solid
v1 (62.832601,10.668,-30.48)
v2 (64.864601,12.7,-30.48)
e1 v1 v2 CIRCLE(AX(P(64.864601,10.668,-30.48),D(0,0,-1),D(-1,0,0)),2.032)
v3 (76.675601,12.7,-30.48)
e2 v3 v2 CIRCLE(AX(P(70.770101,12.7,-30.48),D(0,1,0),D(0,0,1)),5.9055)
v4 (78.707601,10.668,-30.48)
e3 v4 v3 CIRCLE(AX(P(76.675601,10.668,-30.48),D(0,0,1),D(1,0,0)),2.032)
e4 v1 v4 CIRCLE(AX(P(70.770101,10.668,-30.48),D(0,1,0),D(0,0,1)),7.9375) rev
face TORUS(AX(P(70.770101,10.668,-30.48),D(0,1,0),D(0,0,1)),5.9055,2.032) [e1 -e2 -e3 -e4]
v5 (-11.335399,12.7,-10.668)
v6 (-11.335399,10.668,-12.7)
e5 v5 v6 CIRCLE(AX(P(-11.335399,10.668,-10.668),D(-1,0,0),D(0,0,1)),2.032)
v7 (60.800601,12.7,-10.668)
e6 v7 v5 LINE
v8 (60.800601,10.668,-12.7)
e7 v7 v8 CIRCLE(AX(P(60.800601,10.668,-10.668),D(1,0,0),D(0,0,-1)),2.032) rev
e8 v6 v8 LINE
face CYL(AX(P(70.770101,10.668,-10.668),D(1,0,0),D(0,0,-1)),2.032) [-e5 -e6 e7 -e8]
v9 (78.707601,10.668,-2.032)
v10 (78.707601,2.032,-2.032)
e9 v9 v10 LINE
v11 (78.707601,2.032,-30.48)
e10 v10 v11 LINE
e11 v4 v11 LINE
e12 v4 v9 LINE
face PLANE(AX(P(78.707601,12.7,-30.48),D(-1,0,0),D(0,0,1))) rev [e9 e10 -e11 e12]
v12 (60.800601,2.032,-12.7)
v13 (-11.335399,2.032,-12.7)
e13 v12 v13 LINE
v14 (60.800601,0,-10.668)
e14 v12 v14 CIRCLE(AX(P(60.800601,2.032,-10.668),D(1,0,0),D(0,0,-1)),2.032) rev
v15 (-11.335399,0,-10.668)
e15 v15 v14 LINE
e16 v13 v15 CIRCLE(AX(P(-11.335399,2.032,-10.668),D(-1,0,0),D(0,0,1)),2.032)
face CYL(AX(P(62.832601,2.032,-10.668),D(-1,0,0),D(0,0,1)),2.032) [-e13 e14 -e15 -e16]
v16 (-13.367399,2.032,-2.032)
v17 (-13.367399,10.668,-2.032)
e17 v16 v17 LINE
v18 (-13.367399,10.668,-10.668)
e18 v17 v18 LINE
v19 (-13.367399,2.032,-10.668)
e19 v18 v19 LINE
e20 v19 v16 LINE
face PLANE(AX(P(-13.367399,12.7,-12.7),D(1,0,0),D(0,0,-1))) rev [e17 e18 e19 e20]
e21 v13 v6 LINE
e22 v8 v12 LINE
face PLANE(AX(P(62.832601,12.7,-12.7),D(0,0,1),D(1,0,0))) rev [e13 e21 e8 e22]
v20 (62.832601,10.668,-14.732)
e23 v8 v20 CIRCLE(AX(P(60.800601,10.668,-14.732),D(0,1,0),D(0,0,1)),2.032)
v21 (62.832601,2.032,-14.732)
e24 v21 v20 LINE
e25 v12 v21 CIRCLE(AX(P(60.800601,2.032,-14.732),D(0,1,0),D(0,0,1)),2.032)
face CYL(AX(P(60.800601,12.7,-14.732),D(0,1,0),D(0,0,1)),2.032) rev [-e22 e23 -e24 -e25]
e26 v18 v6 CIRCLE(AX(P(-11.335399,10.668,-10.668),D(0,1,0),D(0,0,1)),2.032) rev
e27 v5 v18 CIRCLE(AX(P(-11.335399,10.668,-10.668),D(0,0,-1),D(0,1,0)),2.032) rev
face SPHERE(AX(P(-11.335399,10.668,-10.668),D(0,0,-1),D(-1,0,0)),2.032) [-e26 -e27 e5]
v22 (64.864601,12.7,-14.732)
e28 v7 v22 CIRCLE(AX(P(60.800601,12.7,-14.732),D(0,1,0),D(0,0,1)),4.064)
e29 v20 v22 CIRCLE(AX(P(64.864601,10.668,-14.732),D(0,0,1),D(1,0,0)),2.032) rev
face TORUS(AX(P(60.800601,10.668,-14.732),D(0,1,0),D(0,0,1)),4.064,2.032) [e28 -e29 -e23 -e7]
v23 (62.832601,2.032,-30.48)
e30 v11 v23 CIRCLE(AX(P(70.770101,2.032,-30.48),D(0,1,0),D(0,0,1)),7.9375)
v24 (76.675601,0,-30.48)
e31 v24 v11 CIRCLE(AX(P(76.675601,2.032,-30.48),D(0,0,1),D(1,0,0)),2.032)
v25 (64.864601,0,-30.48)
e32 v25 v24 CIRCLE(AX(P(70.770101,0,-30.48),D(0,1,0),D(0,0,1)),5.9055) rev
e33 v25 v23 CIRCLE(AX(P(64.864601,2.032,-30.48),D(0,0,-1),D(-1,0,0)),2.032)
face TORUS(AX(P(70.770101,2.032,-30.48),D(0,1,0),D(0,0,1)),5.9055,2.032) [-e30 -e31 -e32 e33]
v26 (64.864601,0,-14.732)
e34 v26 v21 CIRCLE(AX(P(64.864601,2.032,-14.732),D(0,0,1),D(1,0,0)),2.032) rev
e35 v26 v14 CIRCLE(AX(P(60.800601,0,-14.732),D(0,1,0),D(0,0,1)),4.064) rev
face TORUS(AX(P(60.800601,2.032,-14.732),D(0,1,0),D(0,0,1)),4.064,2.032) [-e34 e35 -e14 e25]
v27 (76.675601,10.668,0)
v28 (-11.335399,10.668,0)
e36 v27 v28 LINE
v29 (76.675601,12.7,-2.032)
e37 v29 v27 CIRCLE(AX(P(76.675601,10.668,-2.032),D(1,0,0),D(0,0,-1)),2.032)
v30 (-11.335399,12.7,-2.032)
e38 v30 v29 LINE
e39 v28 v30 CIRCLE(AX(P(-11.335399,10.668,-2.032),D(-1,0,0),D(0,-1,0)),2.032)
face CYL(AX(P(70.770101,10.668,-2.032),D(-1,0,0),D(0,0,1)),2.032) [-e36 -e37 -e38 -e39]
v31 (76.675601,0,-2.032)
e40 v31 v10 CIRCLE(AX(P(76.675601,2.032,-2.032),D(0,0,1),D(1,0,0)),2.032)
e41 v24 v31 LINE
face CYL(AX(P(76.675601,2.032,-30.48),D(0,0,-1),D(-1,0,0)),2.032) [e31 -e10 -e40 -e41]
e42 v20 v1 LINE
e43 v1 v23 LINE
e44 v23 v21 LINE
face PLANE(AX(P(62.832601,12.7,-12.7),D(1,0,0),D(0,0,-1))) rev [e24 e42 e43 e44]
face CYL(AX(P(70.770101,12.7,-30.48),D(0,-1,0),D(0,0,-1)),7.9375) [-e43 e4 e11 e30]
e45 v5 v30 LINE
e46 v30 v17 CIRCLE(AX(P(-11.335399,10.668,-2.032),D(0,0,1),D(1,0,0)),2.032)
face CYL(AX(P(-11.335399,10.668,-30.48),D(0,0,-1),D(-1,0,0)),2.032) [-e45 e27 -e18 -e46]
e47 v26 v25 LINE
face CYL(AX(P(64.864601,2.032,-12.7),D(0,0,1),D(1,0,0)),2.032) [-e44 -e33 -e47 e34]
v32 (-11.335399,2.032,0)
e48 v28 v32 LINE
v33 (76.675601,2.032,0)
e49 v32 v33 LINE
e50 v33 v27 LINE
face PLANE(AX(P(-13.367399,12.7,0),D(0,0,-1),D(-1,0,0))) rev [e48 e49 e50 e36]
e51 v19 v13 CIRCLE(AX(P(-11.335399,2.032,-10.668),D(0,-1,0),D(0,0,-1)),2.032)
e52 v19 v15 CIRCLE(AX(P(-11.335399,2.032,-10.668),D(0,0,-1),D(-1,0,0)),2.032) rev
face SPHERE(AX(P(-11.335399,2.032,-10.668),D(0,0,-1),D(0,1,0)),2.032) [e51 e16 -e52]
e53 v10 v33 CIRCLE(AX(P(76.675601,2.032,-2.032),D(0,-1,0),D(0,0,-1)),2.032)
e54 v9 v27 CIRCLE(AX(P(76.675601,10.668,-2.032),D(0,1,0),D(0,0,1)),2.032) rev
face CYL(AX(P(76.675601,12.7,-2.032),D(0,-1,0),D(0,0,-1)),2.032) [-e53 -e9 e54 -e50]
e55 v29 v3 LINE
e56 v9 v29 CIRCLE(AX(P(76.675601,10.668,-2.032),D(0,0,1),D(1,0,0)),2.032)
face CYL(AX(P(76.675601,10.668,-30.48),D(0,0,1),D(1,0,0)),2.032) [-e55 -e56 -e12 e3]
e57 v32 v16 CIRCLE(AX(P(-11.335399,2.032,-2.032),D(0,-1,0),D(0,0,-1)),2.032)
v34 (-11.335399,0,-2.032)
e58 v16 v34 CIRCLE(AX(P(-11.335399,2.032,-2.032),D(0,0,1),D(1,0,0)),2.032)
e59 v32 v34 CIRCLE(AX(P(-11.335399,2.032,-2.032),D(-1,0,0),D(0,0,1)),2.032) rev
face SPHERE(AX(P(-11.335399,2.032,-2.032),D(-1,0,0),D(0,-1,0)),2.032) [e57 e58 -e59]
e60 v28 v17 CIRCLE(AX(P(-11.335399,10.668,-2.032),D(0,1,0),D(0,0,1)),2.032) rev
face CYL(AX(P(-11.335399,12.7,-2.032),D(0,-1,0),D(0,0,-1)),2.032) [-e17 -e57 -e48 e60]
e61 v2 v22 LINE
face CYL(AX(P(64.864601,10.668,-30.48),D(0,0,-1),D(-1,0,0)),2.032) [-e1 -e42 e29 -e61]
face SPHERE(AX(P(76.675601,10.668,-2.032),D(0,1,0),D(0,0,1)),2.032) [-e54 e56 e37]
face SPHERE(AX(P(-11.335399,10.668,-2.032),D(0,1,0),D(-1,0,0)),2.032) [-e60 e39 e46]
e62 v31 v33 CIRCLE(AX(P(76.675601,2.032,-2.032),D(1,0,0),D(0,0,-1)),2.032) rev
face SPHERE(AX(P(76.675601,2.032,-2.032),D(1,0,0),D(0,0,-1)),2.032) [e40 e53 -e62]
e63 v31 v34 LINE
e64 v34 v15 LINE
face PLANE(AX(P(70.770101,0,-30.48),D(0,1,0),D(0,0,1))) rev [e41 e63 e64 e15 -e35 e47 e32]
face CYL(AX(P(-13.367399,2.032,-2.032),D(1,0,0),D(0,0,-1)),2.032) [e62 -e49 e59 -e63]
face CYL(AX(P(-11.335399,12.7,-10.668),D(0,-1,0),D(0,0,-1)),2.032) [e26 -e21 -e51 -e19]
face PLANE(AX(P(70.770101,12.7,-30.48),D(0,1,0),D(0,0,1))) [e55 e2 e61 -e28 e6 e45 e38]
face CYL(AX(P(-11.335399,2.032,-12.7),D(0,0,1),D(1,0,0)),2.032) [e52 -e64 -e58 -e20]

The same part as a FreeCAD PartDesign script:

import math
import FreeCAD as App
import Part
import Sketcher
from FreeCAD import Vector
Q = App.Units.Quantity

doc = App.newDocument("Part")
params = doc.addObject("Spreadsheet::Sheet", "Params")
for row, (alias, value) in enumerate([
    ("sketch1_width", "3 in"),
    ("sketch1_height", "1.2 in"),
    ("sketch1_height2", "0.7 in"),
    ("sketch1_radius", "0.3125 in"),
    ("pad1_length", "0.5 in"),
    ("fillet_radius", "0.08 in"),
], start=1):
    params.set(f"A{row}", alias)
    params.set(f"B{row}", "=" + value)
    params.setAlias(f"B{row}", alias)

body = doc.addObject("PartDesign::Body", "Body")

sketch1 = body.newObject("Sketcher::SketchObject", "Sketch")
sketch1.AttachmentSupport = (doc.getObject("XZ_Plane"), [""])
sketch1.MapMode = "FlatFace"
sketch1.addGeometry(Part.LineSegment(Vector(-13, 0, 0), Vector(79, 0, 0)), False)
sketch1.addGeometry(Part.LineSegment(Vector(79, 0, 0), Vector(79, -30, 0)), False)
sketch1.addGeometry(Part.ArcOfCircle(Part.Circle(Vector(71, -30, 0), Vector(0, 0, 1), 8), math.radians(180), math.radians(360)), False)
sketch1.addGeometry(Part.LineSegment(Vector(63, -30, 0), Vector(63, -13, 0)), False)
sketch1.addGeometry(Part.LineSegment(Vector(63, -13, 0), Vector(-13, -13, 0)), False)
sketch1.addGeometry(Part.LineSegment(Vector(-13, -13, 0), Vector(-13, 0, 0)), False)
sketch1.addConstraint(Sketcher.Constraint("Coincident", 0, 2, 1, 1))
sketch1.addConstraint(Sketcher.Constraint("Tangent", 1, 2, 2, 2))
sketch1.addConstraint(Sketcher.Constraint("Tangent", 2, 1, 3, 1))
sketch1.addConstraint(Sketcher.Constraint("Coincident", 3, 2, 4, 1))
sketch1.addConstraint(Sketcher.Constraint("Coincident", 4, 2, 5, 1))
sketch1.addConstraint(Sketcher.Constraint("Coincident", 5, 2, 0, 1))
sketch1.addConstraint(Sketcher.Constraint("Horizontal", 0))
sketch1.addConstraint(Sketcher.Constraint("Vertical", 1))
sketch1.addConstraint(Sketcher.Constraint("Vertical", 3))
sketch1.addConstraint(Sketcher.Constraint("Horizontal", 4))
sketch1.addConstraint(Sketcher.Constraint("Vertical", 5))
sketch1.addConstraint(Sketcher.Constraint("PointOnObject", 0, 2, -1))
sketch1.addConstraint(Sketcher.Constraint("DistanceX", 4, 2, 4, 1, Q("3 in")))
sketch1.addConstraint(Sketcher.Constraint("DistanceY", 1, 2, 1, 1, Q("1.2 in")))
sketch1.addConstraint(Sketcher.Constraint("DistanceY", 3, 1, 3, 2, Q("0.7 in")))
sketch1.addConstraint(Sketcher.Constraint("Radius", 2, Q("0.3125 in")))
sketch1.addConstraint(Sketcher.Constraint("DistanceX", -1, 1, 2, 3, 70.770101))
sketch1.setExpression("Constraints[12]", "Params.sketch1_width")
sketch1.setExpression("Constraints[13]", "Params.sketch1_height")
sketch1.setExpression("Constraints[14]", "Params.sketch1_height2")
sketch1.setExpression("Constraints[15]", "Params.sketch1_radius")
pad1 = body.newObject("PartDesign::Pad", "Pad")
pad1.Profile = sketch1
pad1.setExpression("Length", "Params.pad1_length")
pad1.Reversed = True
doc.recompute()

fillet = body.newObject("PartDesign::Fillet", "Fillet")
fillet.Base = (pad1, ["Edge1"])
fillet.UseAllEdges = True
fillet.setExpression("Radius", "Params.fillet_radius")

doc.recompute()
